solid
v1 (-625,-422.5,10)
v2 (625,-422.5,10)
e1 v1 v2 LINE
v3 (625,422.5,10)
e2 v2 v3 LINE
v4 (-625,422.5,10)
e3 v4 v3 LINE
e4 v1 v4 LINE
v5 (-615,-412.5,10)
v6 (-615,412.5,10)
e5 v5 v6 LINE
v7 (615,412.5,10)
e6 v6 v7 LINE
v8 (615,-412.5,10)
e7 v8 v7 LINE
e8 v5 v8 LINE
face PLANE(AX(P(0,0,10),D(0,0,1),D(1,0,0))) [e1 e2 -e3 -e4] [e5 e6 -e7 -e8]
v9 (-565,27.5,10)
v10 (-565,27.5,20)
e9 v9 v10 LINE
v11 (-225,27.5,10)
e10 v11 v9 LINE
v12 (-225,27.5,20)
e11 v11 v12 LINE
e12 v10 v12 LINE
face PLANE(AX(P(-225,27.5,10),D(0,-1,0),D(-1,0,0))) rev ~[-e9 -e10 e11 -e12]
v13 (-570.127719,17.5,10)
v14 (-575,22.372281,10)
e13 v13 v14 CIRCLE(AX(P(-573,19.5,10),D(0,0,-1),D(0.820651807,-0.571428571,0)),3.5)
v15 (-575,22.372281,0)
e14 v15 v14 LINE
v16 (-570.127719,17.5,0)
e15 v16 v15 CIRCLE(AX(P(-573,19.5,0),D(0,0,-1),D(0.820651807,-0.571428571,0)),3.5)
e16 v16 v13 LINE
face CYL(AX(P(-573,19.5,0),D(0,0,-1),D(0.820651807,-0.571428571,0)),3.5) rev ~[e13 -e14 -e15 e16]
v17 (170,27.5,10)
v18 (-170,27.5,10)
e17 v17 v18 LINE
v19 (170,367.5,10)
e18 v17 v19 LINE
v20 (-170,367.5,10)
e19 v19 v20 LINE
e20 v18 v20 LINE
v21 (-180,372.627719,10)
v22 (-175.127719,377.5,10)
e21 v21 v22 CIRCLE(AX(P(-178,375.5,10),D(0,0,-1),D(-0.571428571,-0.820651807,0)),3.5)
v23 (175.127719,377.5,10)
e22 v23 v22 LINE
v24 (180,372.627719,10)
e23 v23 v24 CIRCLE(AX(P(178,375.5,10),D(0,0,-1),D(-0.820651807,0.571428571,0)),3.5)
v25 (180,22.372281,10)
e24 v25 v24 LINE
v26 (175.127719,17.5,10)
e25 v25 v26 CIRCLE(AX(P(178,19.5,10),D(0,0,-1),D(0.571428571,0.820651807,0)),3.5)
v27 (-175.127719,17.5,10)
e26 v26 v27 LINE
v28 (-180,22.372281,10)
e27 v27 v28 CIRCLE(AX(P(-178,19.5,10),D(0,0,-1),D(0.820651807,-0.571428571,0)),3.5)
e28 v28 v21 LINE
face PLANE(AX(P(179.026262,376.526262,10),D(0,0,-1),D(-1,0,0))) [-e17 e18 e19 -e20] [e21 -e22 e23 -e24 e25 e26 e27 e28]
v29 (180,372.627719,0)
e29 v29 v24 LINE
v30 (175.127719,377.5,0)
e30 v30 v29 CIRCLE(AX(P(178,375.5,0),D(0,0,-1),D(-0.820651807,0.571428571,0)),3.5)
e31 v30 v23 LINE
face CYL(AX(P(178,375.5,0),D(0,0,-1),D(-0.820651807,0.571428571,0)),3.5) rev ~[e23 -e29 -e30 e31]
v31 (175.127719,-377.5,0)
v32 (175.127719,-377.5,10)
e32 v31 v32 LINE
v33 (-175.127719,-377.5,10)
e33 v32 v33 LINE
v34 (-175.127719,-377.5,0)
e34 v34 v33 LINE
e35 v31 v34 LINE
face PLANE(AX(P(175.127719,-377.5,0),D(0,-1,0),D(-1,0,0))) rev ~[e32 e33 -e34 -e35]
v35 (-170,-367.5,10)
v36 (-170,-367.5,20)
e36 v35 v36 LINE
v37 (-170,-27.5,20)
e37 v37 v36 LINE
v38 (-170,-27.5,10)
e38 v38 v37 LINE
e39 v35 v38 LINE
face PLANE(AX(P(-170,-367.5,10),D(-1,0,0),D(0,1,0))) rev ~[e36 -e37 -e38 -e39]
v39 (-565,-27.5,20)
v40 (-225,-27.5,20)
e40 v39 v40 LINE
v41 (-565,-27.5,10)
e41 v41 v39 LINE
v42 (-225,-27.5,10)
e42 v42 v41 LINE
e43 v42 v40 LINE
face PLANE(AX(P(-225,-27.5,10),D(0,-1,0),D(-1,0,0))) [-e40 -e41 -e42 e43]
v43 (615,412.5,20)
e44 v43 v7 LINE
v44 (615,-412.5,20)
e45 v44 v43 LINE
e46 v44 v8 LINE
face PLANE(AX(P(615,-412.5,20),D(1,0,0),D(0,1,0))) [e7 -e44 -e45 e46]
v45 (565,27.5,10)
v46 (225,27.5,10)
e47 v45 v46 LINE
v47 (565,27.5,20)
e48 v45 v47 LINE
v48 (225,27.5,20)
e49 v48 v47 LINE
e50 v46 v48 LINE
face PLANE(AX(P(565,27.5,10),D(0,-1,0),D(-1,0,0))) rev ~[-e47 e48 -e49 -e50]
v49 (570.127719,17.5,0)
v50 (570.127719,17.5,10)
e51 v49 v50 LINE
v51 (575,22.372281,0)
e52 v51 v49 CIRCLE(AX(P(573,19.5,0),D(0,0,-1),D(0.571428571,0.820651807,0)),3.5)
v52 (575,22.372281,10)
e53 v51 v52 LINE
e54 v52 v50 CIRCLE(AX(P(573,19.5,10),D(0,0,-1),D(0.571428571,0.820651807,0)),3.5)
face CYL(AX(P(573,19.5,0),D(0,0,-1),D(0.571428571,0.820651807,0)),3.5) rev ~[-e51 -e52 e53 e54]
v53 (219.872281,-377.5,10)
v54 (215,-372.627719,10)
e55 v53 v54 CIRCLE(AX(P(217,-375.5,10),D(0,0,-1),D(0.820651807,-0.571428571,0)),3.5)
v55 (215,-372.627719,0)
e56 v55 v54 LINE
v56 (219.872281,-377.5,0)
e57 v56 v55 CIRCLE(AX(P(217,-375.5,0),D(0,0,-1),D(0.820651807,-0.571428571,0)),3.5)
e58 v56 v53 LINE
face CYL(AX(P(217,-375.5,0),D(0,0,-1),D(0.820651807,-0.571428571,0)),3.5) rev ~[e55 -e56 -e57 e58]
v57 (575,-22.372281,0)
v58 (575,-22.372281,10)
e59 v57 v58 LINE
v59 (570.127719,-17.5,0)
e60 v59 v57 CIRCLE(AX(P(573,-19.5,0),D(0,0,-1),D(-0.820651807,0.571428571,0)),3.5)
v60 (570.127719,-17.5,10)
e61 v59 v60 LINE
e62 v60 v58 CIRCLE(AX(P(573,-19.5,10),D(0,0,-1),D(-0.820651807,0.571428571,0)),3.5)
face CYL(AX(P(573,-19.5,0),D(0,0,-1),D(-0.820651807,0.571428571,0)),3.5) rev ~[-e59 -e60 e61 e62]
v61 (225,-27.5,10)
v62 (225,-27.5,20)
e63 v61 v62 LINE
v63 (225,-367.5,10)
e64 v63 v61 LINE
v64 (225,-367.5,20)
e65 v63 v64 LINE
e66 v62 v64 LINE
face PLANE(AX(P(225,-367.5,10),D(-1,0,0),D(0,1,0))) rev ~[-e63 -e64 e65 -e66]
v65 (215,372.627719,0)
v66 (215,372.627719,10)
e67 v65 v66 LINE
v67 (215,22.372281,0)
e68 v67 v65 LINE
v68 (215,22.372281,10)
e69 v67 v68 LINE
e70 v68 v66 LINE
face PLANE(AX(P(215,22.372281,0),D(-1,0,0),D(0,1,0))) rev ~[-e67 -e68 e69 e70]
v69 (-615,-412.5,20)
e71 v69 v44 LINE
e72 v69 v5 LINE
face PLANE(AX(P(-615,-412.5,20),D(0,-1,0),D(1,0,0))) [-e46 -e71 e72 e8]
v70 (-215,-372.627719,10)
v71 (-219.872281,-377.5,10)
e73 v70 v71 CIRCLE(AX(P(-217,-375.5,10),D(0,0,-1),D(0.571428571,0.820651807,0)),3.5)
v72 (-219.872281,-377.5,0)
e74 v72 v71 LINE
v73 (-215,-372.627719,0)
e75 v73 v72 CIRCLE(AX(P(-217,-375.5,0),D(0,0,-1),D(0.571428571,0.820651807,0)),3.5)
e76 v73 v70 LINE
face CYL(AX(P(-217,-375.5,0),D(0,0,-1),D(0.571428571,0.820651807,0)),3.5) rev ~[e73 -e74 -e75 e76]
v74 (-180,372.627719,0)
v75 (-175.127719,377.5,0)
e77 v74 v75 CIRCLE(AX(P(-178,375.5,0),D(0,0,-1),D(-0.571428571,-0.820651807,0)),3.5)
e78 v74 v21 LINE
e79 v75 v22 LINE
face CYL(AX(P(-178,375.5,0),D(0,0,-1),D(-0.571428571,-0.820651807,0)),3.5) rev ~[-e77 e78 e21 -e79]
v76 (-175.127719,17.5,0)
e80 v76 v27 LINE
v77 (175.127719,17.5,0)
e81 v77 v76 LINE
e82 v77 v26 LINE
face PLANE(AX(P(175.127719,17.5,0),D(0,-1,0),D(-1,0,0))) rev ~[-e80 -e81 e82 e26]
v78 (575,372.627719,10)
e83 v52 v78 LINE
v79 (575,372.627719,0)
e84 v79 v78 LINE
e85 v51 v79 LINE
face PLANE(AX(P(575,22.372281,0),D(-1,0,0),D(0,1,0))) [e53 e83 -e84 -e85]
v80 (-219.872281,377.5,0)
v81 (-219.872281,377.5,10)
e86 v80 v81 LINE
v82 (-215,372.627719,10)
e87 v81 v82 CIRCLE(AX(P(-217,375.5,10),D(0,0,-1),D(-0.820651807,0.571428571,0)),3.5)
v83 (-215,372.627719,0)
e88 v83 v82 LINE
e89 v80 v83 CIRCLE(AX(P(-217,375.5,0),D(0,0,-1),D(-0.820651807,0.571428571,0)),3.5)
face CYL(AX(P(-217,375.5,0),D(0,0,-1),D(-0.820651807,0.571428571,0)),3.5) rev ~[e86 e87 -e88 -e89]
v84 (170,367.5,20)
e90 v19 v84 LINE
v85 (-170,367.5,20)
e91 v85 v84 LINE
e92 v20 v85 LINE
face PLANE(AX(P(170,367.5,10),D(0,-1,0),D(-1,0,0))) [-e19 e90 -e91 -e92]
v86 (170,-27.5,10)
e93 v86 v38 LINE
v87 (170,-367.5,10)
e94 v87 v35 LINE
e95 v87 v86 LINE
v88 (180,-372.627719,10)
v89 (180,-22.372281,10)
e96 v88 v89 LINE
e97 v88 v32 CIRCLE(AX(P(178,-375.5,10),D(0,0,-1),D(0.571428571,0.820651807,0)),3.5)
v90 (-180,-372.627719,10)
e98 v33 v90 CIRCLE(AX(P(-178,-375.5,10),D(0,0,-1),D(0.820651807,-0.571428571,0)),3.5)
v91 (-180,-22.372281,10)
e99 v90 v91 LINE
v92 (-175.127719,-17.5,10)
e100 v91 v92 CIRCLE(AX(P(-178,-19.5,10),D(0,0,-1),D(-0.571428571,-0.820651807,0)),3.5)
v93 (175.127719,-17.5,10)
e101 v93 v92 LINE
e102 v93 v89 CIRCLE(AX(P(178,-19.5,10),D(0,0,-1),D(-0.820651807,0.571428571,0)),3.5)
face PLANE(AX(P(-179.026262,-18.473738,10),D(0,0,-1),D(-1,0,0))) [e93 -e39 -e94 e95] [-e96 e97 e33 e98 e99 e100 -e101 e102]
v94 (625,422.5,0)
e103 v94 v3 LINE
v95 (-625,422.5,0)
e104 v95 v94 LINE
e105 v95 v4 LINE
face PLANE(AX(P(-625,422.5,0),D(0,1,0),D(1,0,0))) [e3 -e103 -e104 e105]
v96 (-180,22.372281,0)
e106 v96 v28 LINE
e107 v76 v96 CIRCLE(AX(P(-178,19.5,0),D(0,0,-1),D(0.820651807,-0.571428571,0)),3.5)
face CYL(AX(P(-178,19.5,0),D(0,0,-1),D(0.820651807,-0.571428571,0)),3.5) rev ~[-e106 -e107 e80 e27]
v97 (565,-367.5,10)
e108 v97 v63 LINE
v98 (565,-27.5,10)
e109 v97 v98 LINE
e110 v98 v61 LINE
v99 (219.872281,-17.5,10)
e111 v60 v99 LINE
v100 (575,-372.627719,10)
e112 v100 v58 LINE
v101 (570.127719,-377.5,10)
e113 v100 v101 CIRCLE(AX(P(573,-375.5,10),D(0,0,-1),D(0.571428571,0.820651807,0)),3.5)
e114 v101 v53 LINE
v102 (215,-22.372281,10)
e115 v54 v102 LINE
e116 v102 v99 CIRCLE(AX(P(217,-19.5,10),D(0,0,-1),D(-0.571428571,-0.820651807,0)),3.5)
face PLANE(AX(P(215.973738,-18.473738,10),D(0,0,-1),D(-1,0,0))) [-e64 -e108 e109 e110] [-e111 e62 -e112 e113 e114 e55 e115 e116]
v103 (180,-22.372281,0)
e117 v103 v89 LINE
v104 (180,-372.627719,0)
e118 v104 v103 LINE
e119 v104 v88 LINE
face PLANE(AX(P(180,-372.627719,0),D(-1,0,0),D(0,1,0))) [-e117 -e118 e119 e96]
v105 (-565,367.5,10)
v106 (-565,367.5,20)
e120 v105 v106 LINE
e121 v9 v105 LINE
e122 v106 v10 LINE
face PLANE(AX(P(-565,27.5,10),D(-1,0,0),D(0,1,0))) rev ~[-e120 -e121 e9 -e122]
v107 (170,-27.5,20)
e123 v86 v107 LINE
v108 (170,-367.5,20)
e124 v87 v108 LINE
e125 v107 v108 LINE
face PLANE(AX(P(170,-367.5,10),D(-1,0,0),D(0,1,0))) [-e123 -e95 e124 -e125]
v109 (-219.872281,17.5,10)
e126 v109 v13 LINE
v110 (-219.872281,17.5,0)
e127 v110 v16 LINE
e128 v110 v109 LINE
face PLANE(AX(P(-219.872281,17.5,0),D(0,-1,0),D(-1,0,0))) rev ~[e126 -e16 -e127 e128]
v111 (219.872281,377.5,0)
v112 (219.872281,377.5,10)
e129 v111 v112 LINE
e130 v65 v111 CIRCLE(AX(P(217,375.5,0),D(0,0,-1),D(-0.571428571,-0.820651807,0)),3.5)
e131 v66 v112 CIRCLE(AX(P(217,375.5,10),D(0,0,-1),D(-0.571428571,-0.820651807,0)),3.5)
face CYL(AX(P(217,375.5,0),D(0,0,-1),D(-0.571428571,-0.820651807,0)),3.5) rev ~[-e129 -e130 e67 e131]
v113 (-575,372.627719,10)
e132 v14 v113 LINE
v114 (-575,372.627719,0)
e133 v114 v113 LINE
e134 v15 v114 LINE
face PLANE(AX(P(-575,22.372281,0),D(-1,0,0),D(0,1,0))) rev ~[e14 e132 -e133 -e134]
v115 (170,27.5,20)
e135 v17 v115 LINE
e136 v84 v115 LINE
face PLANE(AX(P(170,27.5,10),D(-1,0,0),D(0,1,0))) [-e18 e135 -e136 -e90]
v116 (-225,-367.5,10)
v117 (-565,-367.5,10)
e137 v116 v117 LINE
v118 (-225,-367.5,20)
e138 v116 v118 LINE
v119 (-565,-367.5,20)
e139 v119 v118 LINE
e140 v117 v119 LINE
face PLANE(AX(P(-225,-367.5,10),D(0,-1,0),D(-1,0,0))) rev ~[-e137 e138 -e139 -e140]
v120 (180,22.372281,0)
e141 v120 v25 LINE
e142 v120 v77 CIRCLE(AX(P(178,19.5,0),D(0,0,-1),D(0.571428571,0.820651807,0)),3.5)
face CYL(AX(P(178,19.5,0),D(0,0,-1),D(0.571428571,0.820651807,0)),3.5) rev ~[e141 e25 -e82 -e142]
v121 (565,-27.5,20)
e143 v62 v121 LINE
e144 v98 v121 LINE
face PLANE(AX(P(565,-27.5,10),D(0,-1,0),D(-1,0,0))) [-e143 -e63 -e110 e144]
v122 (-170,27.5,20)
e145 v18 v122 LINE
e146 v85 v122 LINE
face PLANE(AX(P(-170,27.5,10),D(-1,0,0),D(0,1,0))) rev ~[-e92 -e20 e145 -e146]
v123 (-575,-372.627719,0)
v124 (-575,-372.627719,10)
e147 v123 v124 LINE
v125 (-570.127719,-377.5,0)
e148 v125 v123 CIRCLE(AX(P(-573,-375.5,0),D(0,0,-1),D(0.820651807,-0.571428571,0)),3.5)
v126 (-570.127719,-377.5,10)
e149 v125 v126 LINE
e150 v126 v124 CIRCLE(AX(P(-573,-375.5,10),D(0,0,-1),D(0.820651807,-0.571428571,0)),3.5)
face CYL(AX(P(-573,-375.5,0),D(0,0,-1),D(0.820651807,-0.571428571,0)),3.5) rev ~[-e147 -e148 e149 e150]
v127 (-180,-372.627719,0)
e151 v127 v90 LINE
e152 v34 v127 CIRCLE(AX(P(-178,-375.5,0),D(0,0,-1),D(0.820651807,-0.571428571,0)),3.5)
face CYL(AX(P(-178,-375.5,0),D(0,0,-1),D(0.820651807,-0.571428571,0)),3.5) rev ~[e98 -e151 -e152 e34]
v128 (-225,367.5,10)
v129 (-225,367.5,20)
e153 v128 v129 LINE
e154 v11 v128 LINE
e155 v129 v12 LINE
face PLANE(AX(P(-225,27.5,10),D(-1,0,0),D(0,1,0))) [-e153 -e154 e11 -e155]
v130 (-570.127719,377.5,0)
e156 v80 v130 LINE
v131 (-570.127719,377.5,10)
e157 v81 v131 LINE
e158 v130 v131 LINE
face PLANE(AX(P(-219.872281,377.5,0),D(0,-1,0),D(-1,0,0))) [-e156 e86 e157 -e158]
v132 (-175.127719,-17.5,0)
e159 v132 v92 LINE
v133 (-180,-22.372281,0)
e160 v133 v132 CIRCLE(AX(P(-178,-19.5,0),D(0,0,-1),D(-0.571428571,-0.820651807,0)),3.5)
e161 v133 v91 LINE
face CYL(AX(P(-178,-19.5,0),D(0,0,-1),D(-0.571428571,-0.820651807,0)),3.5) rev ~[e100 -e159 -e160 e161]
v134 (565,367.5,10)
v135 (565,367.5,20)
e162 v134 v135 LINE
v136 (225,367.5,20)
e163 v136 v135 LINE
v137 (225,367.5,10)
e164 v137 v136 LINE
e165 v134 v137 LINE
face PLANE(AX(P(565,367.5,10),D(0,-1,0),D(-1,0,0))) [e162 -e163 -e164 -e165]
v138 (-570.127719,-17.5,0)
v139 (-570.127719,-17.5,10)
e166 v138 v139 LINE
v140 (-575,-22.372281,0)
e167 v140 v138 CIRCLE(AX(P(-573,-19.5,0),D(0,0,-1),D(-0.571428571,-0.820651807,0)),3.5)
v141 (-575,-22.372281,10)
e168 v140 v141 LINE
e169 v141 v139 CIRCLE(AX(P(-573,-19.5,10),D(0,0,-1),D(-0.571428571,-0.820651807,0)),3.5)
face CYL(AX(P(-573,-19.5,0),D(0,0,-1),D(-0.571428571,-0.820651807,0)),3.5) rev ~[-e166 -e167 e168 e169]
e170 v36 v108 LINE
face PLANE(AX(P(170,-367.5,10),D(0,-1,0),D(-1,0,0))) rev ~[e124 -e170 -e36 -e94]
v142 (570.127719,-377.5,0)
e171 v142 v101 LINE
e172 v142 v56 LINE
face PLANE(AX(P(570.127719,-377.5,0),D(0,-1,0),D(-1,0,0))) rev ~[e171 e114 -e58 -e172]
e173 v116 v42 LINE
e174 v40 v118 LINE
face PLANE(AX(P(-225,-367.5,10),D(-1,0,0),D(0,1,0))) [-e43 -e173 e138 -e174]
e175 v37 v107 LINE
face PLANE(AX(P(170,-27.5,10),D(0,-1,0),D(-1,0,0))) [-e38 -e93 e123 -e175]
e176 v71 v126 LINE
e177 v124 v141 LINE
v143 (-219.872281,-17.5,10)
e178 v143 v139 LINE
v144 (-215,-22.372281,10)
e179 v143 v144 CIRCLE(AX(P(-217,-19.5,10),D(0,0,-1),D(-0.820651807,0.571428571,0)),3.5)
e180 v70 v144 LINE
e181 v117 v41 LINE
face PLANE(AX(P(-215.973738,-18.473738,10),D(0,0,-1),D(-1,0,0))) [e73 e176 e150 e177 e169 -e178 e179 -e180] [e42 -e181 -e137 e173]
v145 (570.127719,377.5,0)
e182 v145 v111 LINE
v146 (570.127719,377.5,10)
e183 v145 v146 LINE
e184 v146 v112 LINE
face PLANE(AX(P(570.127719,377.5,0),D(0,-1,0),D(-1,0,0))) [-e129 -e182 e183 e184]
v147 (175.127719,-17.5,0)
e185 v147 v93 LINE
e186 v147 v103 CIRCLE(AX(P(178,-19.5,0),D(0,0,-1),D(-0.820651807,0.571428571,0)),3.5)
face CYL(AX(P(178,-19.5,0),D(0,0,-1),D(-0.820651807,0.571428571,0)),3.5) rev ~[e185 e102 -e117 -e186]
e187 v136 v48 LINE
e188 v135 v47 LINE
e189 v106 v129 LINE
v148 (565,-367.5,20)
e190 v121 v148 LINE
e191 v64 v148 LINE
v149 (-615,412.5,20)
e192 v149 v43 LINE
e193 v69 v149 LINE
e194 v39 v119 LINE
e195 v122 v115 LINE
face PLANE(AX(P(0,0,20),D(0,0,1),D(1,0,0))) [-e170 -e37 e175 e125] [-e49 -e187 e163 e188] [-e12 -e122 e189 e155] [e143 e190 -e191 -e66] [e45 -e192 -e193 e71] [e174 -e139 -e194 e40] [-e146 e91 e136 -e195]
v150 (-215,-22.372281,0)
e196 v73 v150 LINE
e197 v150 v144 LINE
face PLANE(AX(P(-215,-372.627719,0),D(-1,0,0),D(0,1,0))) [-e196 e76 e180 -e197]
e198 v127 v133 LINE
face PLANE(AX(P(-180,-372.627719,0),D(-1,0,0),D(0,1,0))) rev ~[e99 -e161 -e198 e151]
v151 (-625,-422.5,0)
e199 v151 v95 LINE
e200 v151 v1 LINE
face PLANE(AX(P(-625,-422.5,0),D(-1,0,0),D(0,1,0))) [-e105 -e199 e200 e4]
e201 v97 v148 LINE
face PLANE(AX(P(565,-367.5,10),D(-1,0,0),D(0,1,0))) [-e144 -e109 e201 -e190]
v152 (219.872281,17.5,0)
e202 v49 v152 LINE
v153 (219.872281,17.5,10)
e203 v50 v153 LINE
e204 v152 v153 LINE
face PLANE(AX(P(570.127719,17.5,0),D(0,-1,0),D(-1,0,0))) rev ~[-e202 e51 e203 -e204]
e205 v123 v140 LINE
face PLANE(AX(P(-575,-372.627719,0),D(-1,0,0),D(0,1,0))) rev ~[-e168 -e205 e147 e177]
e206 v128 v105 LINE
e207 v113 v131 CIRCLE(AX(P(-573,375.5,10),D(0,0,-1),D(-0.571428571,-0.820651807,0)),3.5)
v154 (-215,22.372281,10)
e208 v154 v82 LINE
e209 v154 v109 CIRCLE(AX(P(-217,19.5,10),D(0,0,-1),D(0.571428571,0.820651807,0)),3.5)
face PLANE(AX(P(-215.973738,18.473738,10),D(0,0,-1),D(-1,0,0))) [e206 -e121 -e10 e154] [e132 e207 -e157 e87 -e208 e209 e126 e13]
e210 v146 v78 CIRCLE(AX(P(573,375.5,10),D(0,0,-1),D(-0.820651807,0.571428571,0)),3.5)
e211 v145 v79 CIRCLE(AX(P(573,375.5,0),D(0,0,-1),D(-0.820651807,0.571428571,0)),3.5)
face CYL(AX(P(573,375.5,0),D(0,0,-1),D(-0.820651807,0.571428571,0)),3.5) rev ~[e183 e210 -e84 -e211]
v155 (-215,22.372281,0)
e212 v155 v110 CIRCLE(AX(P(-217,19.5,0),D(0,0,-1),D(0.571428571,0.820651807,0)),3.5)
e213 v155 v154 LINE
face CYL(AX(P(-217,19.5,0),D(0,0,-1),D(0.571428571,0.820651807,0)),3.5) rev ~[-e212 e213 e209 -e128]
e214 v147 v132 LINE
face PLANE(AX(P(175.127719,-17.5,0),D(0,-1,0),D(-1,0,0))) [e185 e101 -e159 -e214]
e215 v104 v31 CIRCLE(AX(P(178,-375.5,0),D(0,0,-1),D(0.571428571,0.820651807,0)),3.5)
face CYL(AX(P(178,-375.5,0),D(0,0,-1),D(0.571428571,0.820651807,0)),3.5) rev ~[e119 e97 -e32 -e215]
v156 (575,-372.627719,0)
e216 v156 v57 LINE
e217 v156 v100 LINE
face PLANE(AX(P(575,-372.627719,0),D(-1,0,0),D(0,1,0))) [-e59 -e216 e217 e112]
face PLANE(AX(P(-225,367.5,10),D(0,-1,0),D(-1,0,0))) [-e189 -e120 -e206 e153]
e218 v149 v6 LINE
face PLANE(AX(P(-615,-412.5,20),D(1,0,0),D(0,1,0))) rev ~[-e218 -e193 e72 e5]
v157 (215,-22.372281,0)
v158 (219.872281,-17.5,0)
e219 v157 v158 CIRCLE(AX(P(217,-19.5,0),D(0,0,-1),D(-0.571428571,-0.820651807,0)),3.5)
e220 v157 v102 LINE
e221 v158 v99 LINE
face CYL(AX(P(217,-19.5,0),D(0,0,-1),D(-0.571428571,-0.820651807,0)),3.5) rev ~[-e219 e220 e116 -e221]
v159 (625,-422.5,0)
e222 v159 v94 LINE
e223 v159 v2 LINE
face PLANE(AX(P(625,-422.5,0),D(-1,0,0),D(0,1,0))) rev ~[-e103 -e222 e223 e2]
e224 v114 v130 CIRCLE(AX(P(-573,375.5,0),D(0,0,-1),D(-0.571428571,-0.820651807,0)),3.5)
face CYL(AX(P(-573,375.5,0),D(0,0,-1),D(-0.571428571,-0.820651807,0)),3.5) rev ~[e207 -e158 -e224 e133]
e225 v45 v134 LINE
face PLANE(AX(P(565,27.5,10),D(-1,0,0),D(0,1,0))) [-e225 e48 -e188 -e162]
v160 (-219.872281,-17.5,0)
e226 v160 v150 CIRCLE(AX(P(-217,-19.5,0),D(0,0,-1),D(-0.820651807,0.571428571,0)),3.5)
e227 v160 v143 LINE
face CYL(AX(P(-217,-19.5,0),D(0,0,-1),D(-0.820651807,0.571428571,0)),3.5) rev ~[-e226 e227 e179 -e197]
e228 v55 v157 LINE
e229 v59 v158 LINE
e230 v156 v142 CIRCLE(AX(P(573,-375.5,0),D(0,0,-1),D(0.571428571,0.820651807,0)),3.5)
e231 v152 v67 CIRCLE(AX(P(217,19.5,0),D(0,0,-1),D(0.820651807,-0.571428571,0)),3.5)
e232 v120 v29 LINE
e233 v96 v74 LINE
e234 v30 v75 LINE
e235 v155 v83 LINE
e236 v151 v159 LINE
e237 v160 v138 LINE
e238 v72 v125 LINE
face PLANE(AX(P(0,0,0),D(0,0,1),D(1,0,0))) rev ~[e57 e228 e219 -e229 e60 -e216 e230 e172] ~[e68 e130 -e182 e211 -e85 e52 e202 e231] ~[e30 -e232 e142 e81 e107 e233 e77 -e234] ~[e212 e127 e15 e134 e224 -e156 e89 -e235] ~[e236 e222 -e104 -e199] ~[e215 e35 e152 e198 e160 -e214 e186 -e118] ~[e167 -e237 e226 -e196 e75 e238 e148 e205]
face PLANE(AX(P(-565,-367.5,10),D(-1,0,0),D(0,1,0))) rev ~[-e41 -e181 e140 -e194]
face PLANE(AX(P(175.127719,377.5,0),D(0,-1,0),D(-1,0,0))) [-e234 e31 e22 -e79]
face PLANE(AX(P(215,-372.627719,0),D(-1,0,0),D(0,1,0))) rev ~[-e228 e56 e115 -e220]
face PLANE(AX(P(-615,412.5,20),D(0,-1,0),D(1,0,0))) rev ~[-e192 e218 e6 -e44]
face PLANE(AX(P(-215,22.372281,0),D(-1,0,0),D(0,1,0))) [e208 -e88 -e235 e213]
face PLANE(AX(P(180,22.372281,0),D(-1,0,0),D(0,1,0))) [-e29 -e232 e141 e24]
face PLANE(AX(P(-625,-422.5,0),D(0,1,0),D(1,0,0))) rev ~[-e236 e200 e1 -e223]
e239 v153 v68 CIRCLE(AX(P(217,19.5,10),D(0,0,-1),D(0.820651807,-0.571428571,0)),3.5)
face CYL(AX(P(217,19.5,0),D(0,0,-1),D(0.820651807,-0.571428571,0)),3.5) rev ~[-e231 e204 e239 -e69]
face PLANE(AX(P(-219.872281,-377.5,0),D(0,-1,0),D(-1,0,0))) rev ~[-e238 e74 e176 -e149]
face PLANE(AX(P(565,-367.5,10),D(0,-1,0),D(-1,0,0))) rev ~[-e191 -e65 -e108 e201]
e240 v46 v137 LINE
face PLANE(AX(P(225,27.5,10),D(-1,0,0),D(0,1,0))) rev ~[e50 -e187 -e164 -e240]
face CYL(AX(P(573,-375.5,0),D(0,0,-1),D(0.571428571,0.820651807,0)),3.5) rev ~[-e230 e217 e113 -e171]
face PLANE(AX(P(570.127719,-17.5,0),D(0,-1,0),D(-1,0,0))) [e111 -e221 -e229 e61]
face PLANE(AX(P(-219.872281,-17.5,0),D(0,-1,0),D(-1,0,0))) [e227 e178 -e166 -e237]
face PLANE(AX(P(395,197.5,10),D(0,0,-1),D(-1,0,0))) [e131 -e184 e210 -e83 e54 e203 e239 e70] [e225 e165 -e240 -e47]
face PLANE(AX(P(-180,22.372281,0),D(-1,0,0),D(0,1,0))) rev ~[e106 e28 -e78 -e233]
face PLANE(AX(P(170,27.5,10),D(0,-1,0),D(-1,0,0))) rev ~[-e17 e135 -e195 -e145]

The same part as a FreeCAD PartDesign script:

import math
import FreeCAD as App
import Part
import Sketcher
from FreeCAD import Vector
Q = App.Units.Quantity


def add_polygon(sketch, points):
    """Adds a closed chain of lines whose ends are joined by coincident constraints."""
    first, n = sketch.GeometryCount, len(points)
    for a, b in zip(points, points[1:] + points[:1]):
        sketch.addGeometry(Part.LineSegment(App.Vector(*a, 0), App.Vector(*b, 0)), False)
    for i in range(n):
        sketch.addConstraint(Sketcher.Constraint("Coincident", first + i, 2, first + (i + 1) % n, 1))

doc = App.newDocument("Part")
body = doc.addObject("PartDesign::Body", "Body")

sketch1 = doc.addObject("Sketcher::SketchObject", "Sketch")
body.addObject(sketch1)
sketch1.AttachmentSupport = (doc.XY_Plane, [""])
sketch1.MapMode = "FlatFace"
add_polygon(sketch1, [(-625, 422), (-625, -422), (625, -422), (625, 422)])
sketch1.addConstraint(Sketcher.Constraint("Vertical", 0))
sketch1.addConstraint(Sketcher.Constraint("Horizontal", 1))
sketch1.addConstraint(Sketcher.Constraint("Vertical", 2))
sketch1.addConstraint(Sketcher.Constraint("Horizontal", 3))
sketch1.addConstraint(Sketcher.Constraint("Symmetric", 0, 2, 2, 2, -1, 1))
sketch1.addConstraint(Sketcher.Constraint("DistanceX", 1, 1, 1, 2, Q("1250 mm")))
sketch1.addConstraint(Sketcher.Constraint("DistanceY", 0, 2, 0, 1, Q("845 mm")))
pad1 = doc.addObject("PartDesign::Pad", "Pad")
body.addObject(pad1)
pad1.Profile = sketch1
pad1.Length = 20

sketch2 = doc.addObject("Sketcher::SketchObject", "Sketch001")
body.addObject(sketch2)
sketch2.AttachmentSupport = (doc.XY_Plane, [""])
sketch2.MapMode = "FlatFace"
sketch2.addGeometry(Part.LineSegment(Vector(575, 372.6, 0), Vector(575, 22.4, 0)), False)
sketch2.addGeometry(Part.ArcOfCircle(Part.Circle(Vector(573, 19.5, 0), Vector(0, 0, 1), 3.5), math.radians(-145), math.radians(55)), False)
sketch2.addGeometry(Part.LineSegment(Vector(570.1, 17.5, 0), Vector(219.9, 17.5, 0)), False)
sketch2.addGeometry(Part.ArcOfCircle(Part.Circle(Vector(217, 19.5, 0), Vector(0, 0, 1), 3.5), math.radians(125), math.radians(325)), False)
sketch2.addGeometry(Part.LineSegment(Vector(215, 22.4, 0), Vector(215, 372.6, 0)), False)
sketch2.addGeometry(Part.ArcOfCircle(Part.Circle(Vector(217, 375.5, 0), Vector(0, 0, 1), 3.5), math.radians(35), math.radians(235)), False)
sketch2.addGeometry(Part.LineSegment(Vector(219.9, 377.5, 0), Vector(570.1, 377.5, 0)), False)
sketch2.addGeometry(Part.ArcOfCircle(Part.Circle(Vector(573, 375.5, 0), Vector(0, 0, 1), 3.5), math.radians(-55), math.radians(145)), False)
sketch2.addGeometry(Part.ArcOfCircle(Part.Circle(Vector(178, 375.5, 0), Vector(0, 0, 1), 3.5), math.radians(-55), math.radians(145)), False)
sketch2.addGeometry(Part.LineSegment(Vector(180, 372.6, 0), Vector(180, 22.4, 0)), False)
sketch2.addGeometry(Part.ArcOfCircle(Part.Circle(Vector(178, 19.5, 0), Vector(0, 0, 1), 3.5), math.radians(-145), math.radians(55)), False)
sketch2.addGeometry(Part.LineSegment(Vector(175.1, 17.5, 0), Vector(-175.1, 17.5, 0)), False)
sketch2.addGeometry(Part.ArcOfCircle(Part.Circle(Vector(-178, 19.5, 0), Vector(0, 0, 1), 3.5), math.radians(125), math.radians(325)), False)
sketch2.addGeometry(Part.LineSegment(Vector(-180, 22.4, 0), Vector(-180, 372.6, 0)), False)
sketch2.addGeometry(Part.ArcOfCircle(Part.Circle(Vector(-178, 375.5, 0), Vector(0, 0, 1), 3.5), math.radians(35), math.radians(235)), False)
sketch2.addGeometry(Part.LineSegment(Vector(-175.1, 377.5, 0), Vector(175.1, 377.5, 0)), False)
sketch2.addGeometry(Part.ArcOfCircle(Part.Circle(Vector(-178, -19.5, 0), Vector(0, 0, 1), 3.5), math.radians(35), math.radians(235)), False)
sketch2.addGeometry(Part.LineSegment(Vector(-175.1, -17.5, 0), Vector(175.1, -17.5, 0)), False)
sketch2.addGeometry(Part.ArcOfCircle(Part.Circle(Vector(178, -19.5, 0), Vector(0, 0, 1), 3.5), math.radians(-55), math.radians(145)), False)
sketch2.addGeometry(Part.LineSegment(Vector(180, -22.4, 0), Vector(180, -372.6, 0)), False)
sketch2.addGeometry(Part.ArcOfCircle(Part.Circle(Vector(178, -375.5, 0), Vector(0, 0, 1), 3.5), math.radians(-145), math.radians(55)), False)
sketch2.addGeometry(Part.LineSegment(Vector(175.1, -377.5, 0), Vector(-175.1, -377.5, 0)), False)
sketch2.addGeometry(Part.ArcOfCircle(Part.Circle(Vector(-178, -375.5, 0), Vector(0, 0, 1), 3.5), math.radians(125), math.radians(325)), False)
sketch2.addGeometry(Part.LineSegment(Vector(-180, -372.6, 0), Vector(-180, -22.4, 0)), False)
sketch2.addGeometry(Part.ArcOfCircle(Part.Circle(Vector(-217, -19.5, 0), Vector(0, 0, 1), 3.5), math.radians(-55), math.radians(145)), False)
sketch2.addGeometry(Part.LineSegment(Vector(-215, -22.4, 0), Vector(-215, -372.6, 0)), False)
sketch2.addGeometry(Part.ArcOfCircle(Part.Circle(Vector(-217, -375.5, 0), Vector(0, 0, 1), 3.5), math.radians(-145), math.radians(55)), False)
sketch2.addGeometry(Part.LineSegment(Vector(-219.9, -377.5, 0), Vector(-570.1, -377.5, 0)), False)
sketch2.addGeometry(Part.ArcOfCircle(Part.Circle(Vector(-573, -375.5, 0), Vector(0, 0, 1), 3.5), math.radians(125), math.radians(325)), False)
sketch2.addGeometry(Part.LineSegment(Vector(-575, -372.6, 0), Vector(-575, -22.4, 0)), False)
sketch2.addGeometry(Part.ArcOfCircle(Part.Circle(Vector(-573, -19.5, 0), Vector(0, 0, 1), 3.5), math.radians(35), math.radians(235)), False)
sketch2.addGeometry(Part.LineSegment(Vector(-570.1, -17.5, 0), Vector(-219.9, -17.5, 0)), False)
sketch2.addGeometry(Part.ArcOfCircle(Part.Circle(Vector(-217, 19.5, 0), Vector(0, 0, 1), 3.5), math.radians(-145), math.radians(55)), False)
sketch2.addGeometry(Part.LineSegment(Vector(-219.9, 17.5, 0), Vector(-570.1, 17.5, 0)), False)
sketch2.addGeometry(Part.ArcOfCircle(Part.Circle(Vector(-573, 19.5, 0), Vector(0, 0, 1), 3.5), math.radians(125), math.radians(325)), False)
sketch2.addGeometry(Part.LineSegment(Vector(-575, 22.4, 0), Vector(-575, 372.6, 0)), False)
sketch2.addGeometry(Part.ArcOfCircle(Part.Circle(Vector(-573, 375.5, 0), Vector(0, 0, 1), 3.5), math.radians(35), math.radians(235)), False)
sketch2.addGeometry(Part.LineSegment(Vector(-570.1, 377.5, 0), Vector(-219.9, 377.5, 0)), False)
sketch2.addGeometry(Part.ArcOfCircle(Part.Circle(Vector(-217, 375.5, 0), Vector(0, 0, 1), 3.5), math.radians(-55), math.radians(145)), False)
sketch2.addGeometry(Part.LineSegment(Vector(-215, 372.6, 0), Vector(-215, 22.4, 0)), False)
sketch2.addGeometry(Part.ArcOfCircle(Part.Circle(Vector(217, -19.5, 0), Vector(0, 0, 1), 3.5), math.radians(35), math.radians(235)), False)
sketch2.addGeometry(Part.LineSegment(Vector(219.9, -17.5, 0), Vector(570.1, -17.5, 0)), False)
sketch2.addGeometry(Part.ArcOfCircle(Part.Circle(Vector(573, -19.5, 0), Vector(0, 0, 1), 3.5), math.radians(-55), math.radians(145)), False)
sketch2.addGeometry(Part.LineSegment(Vector(575, -22.4, 0), Vector(575, -372.6, 0)), False)
sketch2.addGeometry(Part.ArcOfCircle(Part.Circle(Vector(573, -375.5, 0), Vector(0, 0, 1), 3.5), math.radians(-145), math.radians(55)), False)
sketch2.addGeometry(Part.LineSegment(Vector(570.1, -377.5, 0), Vector(219.9, -377.5, 0)), False)
sketch2.addGeometry(Part.ArcOfCircle(Part.Circle(Vector(217, -375.5, 0), Vector(0, 0, 1), 3.5), math.radians(125), math.radians(325)), False)
sketch2.addGeometry(Part.LineSegment(Vector(215, -372.6, 0), Vector(215, -22.4, 0)), False)
sketch2.addConstraint(Sketcher.Constraint("Coincident", 0, 2, 1, 2))
sketch2.addConstraint(Sketcher.Constraint("Coincident", 1, 1, 2, 1))
sketch2.addConstraint(Sketcher.Constraint("Coincident", 2, 2, 3, 2))
sketch2.addConstraint(Sketcher.Constraint("Coincident", 3, 1, 4, 1))
sketch2.addConstraint(Sketcher.Constraint("Coincident", 4, 2, 5, 2))
sketch2.addConstraint(Sketcher.Constraint("Coincident", 5, 1, 6, 1))
sketch2.addConstraint(Sketcher.Constraint("Coincident", 6, 2, 7, 2))
sketch2.addConstraint(Sketcher.Constraint("Coincident", 7, 1, 0, 1))
sketch2.addConstraint(Sketcher.Constraint("Coincident", 8, 1, 9, 1))
sketch2.addConstraint(Sketcher.Constraint("Coincident", 9, 2, 10, 2))
sketch2.addConstraint(Sketcher.Constraint("Coincident", 10, 1, 11, 1))
sketch2.addConstraint(Sketcher.Constraint("Coincident", 11, 2, 12, 2))
sketch2.addConstraint(Sketcher.Constraint("Coincident", 12, 1, 13, 1))
sketch2.addConstraint(Sketcher.Constraint("Coincident", 13, 2, 14, 2))
sketch2.addConstraint(Sketcher.Constraint("Coincident", 14, 1, 15, 1))
sketch2.addConstraint(Sketcher.Constraint("Coincident", 15, 2, 8, 2))
sketch2.addConstraint(Sketcher.Constraint("Coincident", 16, 1, 17, 1))
sketch2.addConstraint(Sketcher.Constraint("Coincident", 17, 2, 18, 2))
sketch2.addConstraint(Sketcher.Constraint("Coincident", 18, 1, 19, 1))
sketch2.addConstraint(Sketcher.Constraint("Coincident", 19, 2, 20, 2))
sketch2.addConstraint(Sketcher.Constraint("Coincident", 20, 1, 21, 1))
sketch2.addConstraint(Sketcher.Constraint("Coincident", 21, 2, 22, 2))
sketch2.addConstraint(Sketcher.Constraint("Coincident", 22, 1, 23, 1))
sketch2.addConstraint(Sketcher.Constraint("Coincident", 23, 2, 16, 2))
sketch2.addConstraint(Sketcher.Constraint("Coincident", 24, 1, 25, 1))
sketch2.addConstraint(Sketcher.Constraint("Coincident", 25, 2, 26, 2))
sketch2.addConstraint(Sketcher.Constraint("Coincident", 26, 1, 27, 1))
sketch2.addConstraint(Sketcher.Constraint("Coincident", 27, 2, 28, 2))
sketch2.addConstraint(Sketcher.Constraint("Coincident", 28, 1, 29, 1))
sketch2.addConstraint(Sketcher.Constraint("Coincident", 29, 2, 30, 2))
sketch2.addConstraint(Sketcher.Constraint("Coincident", 30, 1, 31, 1))
sketch2.addConstraint(Sketcher.Constraint("Coincident", 31, 2, 24, 2))
sketch2.addConstraint(Sketcher.Constraint("Coincident", 32, 1, 33, 1))
sketch2.addConstraint(Sketcher.Constraint("Coincident", 33, 2, 34, 2))
sketch2.addConstraint(Sketcher.Constraint("Coincident", 34, 1, 35, 1))
sketch2.addConstraint(Sketcher.Constraint("Coincident", 35, 2, 36, 2))
sketch2.addConstraint(Sketcher.Constraint("Coincident", 36, 1, 37, 1))
sketch2.addConstraint(Sketcher.Constraint("Coincident", 37, 2, 38, 2))
sketch2.addConstraint(Sketcher.Constraint("Coincident", 38, 1, 39, 1))
sketch2.addConstraint(Sketcher.Constraint("Coincident", 39, 2, 32, 2))
sketch2.addConstraint(Sketcher.Constraint("Coincident", 40, 1, 41, 1))
sketch2.addConstraint(Sketcher.Constraint("Coincident", 41, 2, 42, 2))
sketch2.addConstraint(Sketcher.Constraint("Coincident", 42, 1, 43, 1))
sketch2.addConstraint(Sketcher.Constraint("Coincident", 43, 2, 44, 2))
sketch2.addConstraint(Sketcher.Constraint("Coincident", 44, 1, 45, 1))
sketch2.addConstraint(Sketcher.Constraint("Coincident", 45, 2, 46, 2))
sketch2.addConstraint(Sketcher.Constraint("Coincident", 46, 1, 47, 1))
sketch2.addConstraint(Sketcher.Constraint("Coincident", 47, 2, 40, 2))
sketch2.addConstraint(Sketcher.Constraint("Vertical", 0))
sketch2.addConstraint(Sketcher.Constraint("Horizontal", 2))
sketch2.addConstraint(Sketcher.Constraint("Vertical", 4))
sketch2.addConstraint(Sketcher.Constraint("Horizontal", 6))
sketch2.addConstraint(Sketcher.Constraint("Vertical", 9))
sketch2.addConstraint(Sketcher.Constraint("Horizontal", 11))
sketch2.addConstraint(Sketcher.Constraint("Vertical", 13))
sketch2.addConstraint(Sketcher.Constraint("Horizontal", 15))
sketch2.addConstraint(Sketcher.Constraint("Horizontal", 17))
sketch2.addConstraint(Sketcher.Constraint("Vertical", 19))
sketch2.addConstraint(Sketcher.Constraint("Horizontal", 21))
sketch2.addConstraint(Sketcher.Constraint("Vertical", 23))
sketch2.addConstraint(Sketcher.Constraint("Vertical", 25))
sketch2.addConstraint(Sketcher.Constraint("Horizontal", 27))
sketch2.addConstraint(Sketcher.Constraint("Vertical", 29))
sketch2.addConstraint(Sketcher.Constraint("Horizontal", 31))
sketch2.addConstraint(Sketcher.Constraint("Horizontal", 33))
sketch2.addConstraint(Sketcher.Constraint("Vertical", 35))
sketch2.addConstraint(Sketcher.Constraint("Horizontal", 37))
sketch2.addConstraint(Sketcher.Constraint("Vertical", 39))
sketch2.addConstraint(Sketcher.Constraint("Horizontal", 41))
sketch2.addConstraint(Sketcher.Constraint("Vertical", 43))
sketch2.addConstraint(Sketcher.Constraint("Horizontal", 45))
sketch2.addConstraint(Sketcher.Constraint("Vertical", 47))
sketch2.addConstraint(Sketcher.Constraint("Equal", 1, 3))
sketch2.addConstraint(Sketcher.Constraint("Equal", 3, 5))
sketch2.addConstraint(Sketcher.Constraint("Equal", 5, 7))
sketch2.addConstraint(Sketcher.Constraint("Equal", 7, 8))
sketch2.addConstraint(Sketcher.Constraint("Equal", 8, 10))
sketch2.addConstraint(Sketcher.Constraint("Equal", 10, 12))
sketch2.addConstraint(Sketcher.Constraint("Equal", 12, 14))
sketch2.addConstraint(Sketcher.Constraint("Equal", 14, 16))
sketch2.addConstraint(Sketcher.Constraint("Equal", 16, 18))
sketch2.addConstraint(Sketcher.Constraint("Equal", 18, 20))
sketch2.addConstraint(Sketcher.Constraint("Equal", 20, 22))
sketch2.addConstraint(Sketcher.Constraint("Equal", 22, 24))
sketch2.addConstraint(Sketcher.Constraint("Equal", 24, 26))
sketch2.addConstraint(Sketcher.Constraint("Equal", 26, 28))
sketch2.addConstraint(Sketcher.Constraint("Equal", 28, 30))
sketch2.addConstraint(Sketcher.Constraint("Equal", 30, 32))
sketch2.addConstraint(Sketcher.Constraint("Equal", 32, 34))
sketch2.addConstraint(Sketcher.Constraint("Equal", 34, 36))
sketch2.addConstraint(Sketcher.Constraint("Equal", 36, 38))
sketch2.addConstraint(Sketcher.Constraint("Equal", 38, 40))
sketch2.addConstraint(Sketcher.Constraint("Equal", 40, 42))
sketch2.addConstraint(Sketcher.Constraint("Equal", 42, 44))
sketch2.addConstraint(Sketcher.Constraint("Equal", 44, 46))
sketch2.addConstraint(Sketcher.Constraint("Symmetric", 10, 3, 16, 3, -1, 1))
sketch2.addConstraint(Sketcher.Constraint("Symmetric", 12, 3, 18, 3, -1, 1))
sketch2.addConstraint(Sketcher.Constraint("Symmetric", 14, 3, 20, 3, -1, 1))
sketch2.addConstraint(Sketcher.Constraint("Symmetric", 8, 3, 22, 3, -1, 1))
sketch2.addConstraint(Sketcher.Constraint("Symmetric", 3, 3, 24, 3, -1, 1))
sketch2.addConstraint(Sketcher.Constraint("Symmetric", 5, 3, 26, 3, -1, 1))
sketch2.addConstraint(Sketcher.Constraint("Symmetric", 7, 3, 28, 3, -1, 1))
sketch2.addConstraint(Sketcher.Constraint("Symmetric", 1, 3, 30, 3, -1, 1))
sketch2.addConstraint(Sketcher.Constraint("Symmetric", 32, 3, 40, 3, -1, 1))
sketch2.addConstraint(Sketcher.Constraint("Symmetric", 34, 3, 42, 3, -1, 1))
sketch2.addConstraint(Sketcher.Constraint("Symmetric", 36, 3, 44, 3, -1, 1))
sketch2.addConstraint(Sketcher.Constraint("Symmetric", 38, 3, 46, 3, -1, 1))
sketch2.addConstraint(Sketcher.Constraint("Symmetric", 10, 3, 12, 3, -2))
sketch2.addConstraint(Sketcher.Constraint("Symmetric", 8, 3, 14, 3, -2))
sketch2.addConstraint(Sketcher.Constraint("Symmetric", 3, 3, 32, 3, -2))
sketch2.addConstraint(Sketcher.Constraint("Symmetric", 1, 3, 34, 3, -2))
sketch2.addConstraint(Sketcher.Constraint("Symmetric", 7, 3, 36, 3, -2))
sketch2.addConstraint(Sketcher.Constraint("Symmetric", 5, 3, 38, 3, -2))
sketch2.addConstraint(Sketcher.Constraint("Horizontal", 1, 3, 3, 3))
sketch2.addConstraint(Sketcher.Constraint("Horizontal", 5, 3, 7, 3))
sketch2.addConstraint(Sketcher.Constraint("Horizontal", 7, 3, 8, 3))
sketch2.addConstraint(Sketcher.Constraint("Horizontal", 3, 3, 10, 3))
sketch2.addConstraint(Sketcher.Constraint("Horizontal", 0, 2, 3, 1))
sketch2.addConstraint(Sketcher.Constraint("Horizontal", 4, 2, 7, 1))
sketch2.addConstraint(Sketcher.Constraint("Horizontal", 7, 1, 8, 1))
sketch2.addConstraint(Sketcher.Constraint("Horizontal", 3, 1, 9, 2))
sketch2.addConstraint(Sketcher.Constraint("Horizontal", 2, 2, 10, 1))
sketch2.addConstraint(Sketcher.Constraint("Horizontal", 9, 2, 12, 1))
sketch2.addConstraint(Sketcher.Constraint("Horizontal", 6, 2, 14, 1))
sketch2.addConstraint(Sketcher.Constraint("Horizontal", 19, 2, 22, 1))
sketch2.addConstraint(Sketcher.Constraint("Horizontal", 23, 2, 24, 1))
sketch2.addConstraint(Sketcher.Constraint("Horizontal", 21, 2, 26, 1))
sketch2.addConstraint(Sketcher.Constraint("Horizontal", 25, 2, 28, 1))
sketch2.addConstraint(Sketcher.Constraint("Horizontal", 17, 2, 30, 1))
sketch2.addConstraint(Sketcher.Constraint("Horizontal", 11, 2, 32, 1))
sketch2.addConstraint(Sketcher.Constraint("Horizontal", 12, 1, 34, 1))
sketch2.addConstraint(Sketcher.Constraint("Horizontal", 15, 2, 36, 1))
sketch2.addConstraint(Sketcher.Constraint("Horizontal", 35, 2, 38, 1))
sketch2.addConstraint(Sketcher.Constraint("Horizontal", 31, 2, 40, 1))
sketch2.addConstraint(Sketcher.Constraint("Horizontal", 29, 2, 42, 1))
sketch2.addConstraint(Sketcher.Constraint("Horizontal", 27, 2, 44, 1))
sketch2.addConstraint(Sketcher.Constraint("Horizontal", 43, 2, 46, 1))
sketch2.addConstraint(Sketcher.Constraint("Vertical", 3, 3, 5, 3))
sketch2.addConstraint(Sketcher.Constraint("Vertical", 2, 2, 5, 1))
sketch2.addConstraint(Sketcher.Constraint("Vertical", 14, 1, 16, 1))
sketch2.addConstraint(Sketcher.Constraint("Vertical", 9, 2, 18, 1))
sketch2.addConstraint(Sketcher.Constraint("Vertical", 17, 2, 20, 1))
sketch2.addConstraint(Sketcher.Constraint("Equal", 6, 11))
sketch2.addConstraint(Sketcher.Constraint("Equal", 45, 0))
sketch2.addConstraint(Sketcher.Constraint("Radius", 1, Q("3.5 mm")))
sketch2.addConstraint(Sketcher.Constraint("DistanceX", -1, 1, 1, 3, Q("573 mm")))
sketch2.addConstraint(Sketcher.Constraint("DistanceX", -1, 1, 3, 3, Q("217 mm")))
sketch2.addConstraint(Sketcher.Constraint("DistanceX", -1, 1, 0, 2, Q("575 mm")))
sketch2.addConstraint(Sketcher.Constraint("DistanceY", -1, 1, 1, 3, Q("19.5 mm")))
sketch2.addConstraint(Sketcher.Constraint("DistanceY", -1, 1, 5, 3, Q("375.5 mm")))
pocket1 = doc.addObject("PartDesign::Pocket", "Pocket")
body.addObject(pocket1)
pocket1.Profile = sketch2
pocket1.Length = 10
pocket1.Reversed = True

sketch3 = doc.addObject("Sketcher::SketchObject", "Sketch002")
body.addObject(sketch3)
sketch3.AttachmentSupport = (doc.XY_Plane, [""])
sketch3.MapMode = "FlatFace"
sketch3.AttachmentOffset = App.Placement(Vector(0, 0, 10), App.Rotation())
add_polygon(sketch3, [(170, 368), (170, 28), (-170, 28), (-170, 368)])
add_polygon(sketch3, [(-225, 368), (-225, 28), (-565, 28), (-565, 368)])
add_polygon(sketch3, [(565, 368), (565, 28), (225, 28), (225, 368)])
add_polygon(sketch3, [(565, -28), (565, -368), (225, -368), (225, -28)])
add_polygon(sketch3, [(170, -28), (170, -368), (-170, -368), (-170, -28)])
add_polygon(sketch3, [(-225, -28), (-225, -368), (-565, -368), (-565, -28)])
sketch3.addConstraint(Sketcher.Constraint("Vertical", 0))
sketch3.addConstraint(Sketcher.Constraint("Horizontal", 1))
sketch3.addConstraint(Sketcher.Constraint("Vertical", 2))
sketch3.addConstraint(Sketcher.Constraint("Horizontal", 3))
sketch3.addConstraint(Sketcher.Constraint("Vertical", 4))
sketch3.addConstraint(Sketcher.Constraint("Horizontal", 5))
sketch3.addConstraint(Sketcher.Constraint("Vertical", 6))
sketch3.addConstraint(Sketcher.Constraint("Horizontal", 7))
sketch3.addConstraint(Sketcher.Constraint("Vertical", 8))
sketch3.addConstraint(Sketcher.Constraint("Horizontal", 9))
sketch3.addConstraint(Sketcher.Constraint("Vertical", 10))
sketch3.addConstraint(Sketcher.Constraint("Horizontal", 11))
sketch3.addConstraint(Sketcher.Constraint("Vertical", 12))
sketch3.addConstraint(Sketcher.Constraint("Horizontal", 13))
sketch3.addConstraint(Sketcher.Constraint("Vertical", 14))
sketch3.addConstraint(Sketcher.Constraint("Horizontal", 15))
sketch3.addConstraint(Sketcher.Constraint("Vertical", 16))
sketch3.addConstraint(Sketcher.Constraint("Horizontal", 17))
sketch3.addConstraint(Sketcher.Constraint("Vertical", 18))
sketch3.addConstraint(Sketcher.Constraint("Horizontal", 19))
sketch3.addConstraint(Sketcher.Constraint("Vertical", 20))
sketch3.addConstraint(Sketcher.Constraint("Horizontal", 21))
sketch3.addConstraint(Sketcher.Constraint("Vertical", 22))
sketch3.addConstraint(Sketcher.Constraint("Horizontal", 23))
sketch3.addConstraint(Sketcher.Constraint("Symmetric", 6, 2, 12, 2, -1, 1))
sketch3.addConstraint(Sketcher.Constraint("Symmetric", 4, 2, 14, 2, -1, 1))
sketch3.addConstraint(Sketcher.Constraint("Symmetric", 2, 2, 16, 2, -1, 1))
sketch3.addConstraint(Sketcher.Constraint("Symmetric", 0, 2, 18, 2, -1, 1))
sketch3.addConstraint(Sketcher.Constraint("Symmetric", 10, 2, 20, 2, -1, 1))
sketch3.addConstraint(Sketcher.Constraint("Symmetric", 8, 2, 22, 2, -1, 1))
sketch3.addConstraint(Sketcher.Constraint("Symmetric", 5, 2, 8, 2, -2))
sketch3.addConstraint(Sketcher.Constraint("Symmetric", 7, 2, 10, 2, -2))
sketch3.addConstraint(Sketcher.Constraint("Horizontal", 1, 2, 4, 2))
sketch3.addConstraint(Sketcher.Constraint("Horizontal", 3, 2, 6, 2))
sketch3.addConstraint(Sketcher.Constraint("Vertical", 3, 2, 16, 2))
sketch3.addConstraint(Sketcher.Constraint("Equal", 3, 5))
sketch3.addConstraint(Sketcher.Constraint("Equal", 23, 0))
sketch3.addConstraint(Sketcher.Constraint("DistanceX", 1, 2, 1, 1, Q("340 mm")))
sketch3.addConstraint(Sketcher.Constraint("DistanceX", 4, 2, -1, 1, Q("225 mm")))
sketch3.addConstraint(Sketcher.Constraint("DistanceY", 12, 2, 8, 2, Q("395 mm")))
pocket2 = doc.addObject("PartDesign::Pocket", "Pocket001")
body.addObject(pocket2)
pocket2.Profile = sketch3
pocket2.Type = "ThroughAll"
pocket2.Reversed = True

sketch4 = doc.addObject("Sketcher::SketchObject", "Sketch003")
body.addObject(sketch4)
sketch4.AttachmentSupport = (doc.XY_Plane, [""])
sketch4.MapMode = "FlatFace"
sketch4.AttachmentOffset = App.Placement(Vector(0, 0, 20), App.Rotation())
add_polygon(sketch4, [(-625, 422), (-625, -422), (625, -422), (625, 422)])
add_polygon(sketch4, [(615, -412), (-615, -412), (-615, 412), (615, 412)])
sketch4.addConstraint(Sketcher.Constraint("Vertical", 0))
sketch4.addConstraint(Sketcher.Constraint("Horizontal", 1))
sketch4.addConstraint(Sketcher.Constraint("Vertical", 2))
sketch4.addConstraint(Sketcher.Constraint("Horizontal", 3))
sketch4.addConstraint(Sketcher.Constraint("Horizontal", 4))
sketch4.addConstraint(Sketcher.Constraint("Vertical", 5))
sketch4.addConstraint(Sketcher.Constraint("Horizontal", 6))
sketch4.addConstraint(Sketcher.Constraint("Vertical", 7))
sketch4.addConstraint(Sketcher.Constraint("Symmetric", 0, 2, 2, 2, -1, 1))
sketch4.addConstraint(Sketcher.Constraint("Symmetric", 4, 2, 6, 2, -1, 1))
sketch4.addConstraint(Sketcher.Constraint("DistanceX", 1, 1, 1, 2, Q("1250 mm")))
sketch4.addConstraint(Sketcher.Constraint("DistanceX", 4, 2, 4, 1, Q("1230 mm")))
sketch4.addConstraint(Sketcher.Constraint("DistanceY", 0, 2, 0, 1, Q("845 mm")))
sketch4.addConstraint(Sketcher.Constraint("DistanceY", 5, 1, 5, 2, Q("825 mm")))
pocket3 = doc.addObject("PartDesign::Pocket", "Pocket002")
body.addObject(pocket3)
pocket3.Profile = sketch4
pocket3.Length = 10

doc.recompute()
